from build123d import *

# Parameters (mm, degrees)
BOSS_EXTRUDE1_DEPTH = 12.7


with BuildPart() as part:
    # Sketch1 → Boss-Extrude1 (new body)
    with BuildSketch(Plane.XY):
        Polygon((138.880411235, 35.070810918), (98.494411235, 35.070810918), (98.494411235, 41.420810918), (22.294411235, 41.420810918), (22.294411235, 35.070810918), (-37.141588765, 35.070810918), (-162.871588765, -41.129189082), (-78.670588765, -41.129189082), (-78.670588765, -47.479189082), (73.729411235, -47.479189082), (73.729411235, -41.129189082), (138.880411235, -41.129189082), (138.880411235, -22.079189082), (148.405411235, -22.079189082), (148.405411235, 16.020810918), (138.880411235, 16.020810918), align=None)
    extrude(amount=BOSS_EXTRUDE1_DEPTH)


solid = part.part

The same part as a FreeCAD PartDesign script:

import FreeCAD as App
import Part
import Sketcher
Q = App.Units.Quantity

doc = App.newDocument("Part")
body = doc.addObject("PartDesign::Body", "Body")

sketch1 = doc.addObject("Sketcher::SketchObject", "Sketch")
body.addObject(sketch1)
sketch1.AttachmentSupport = (doc.XY_Plane, [""])
sketch1.MapMode = "FlatFace"
sketch1.addGeometry(Part.LineSegment(App.Vector(139, 35, 0), App.Vector(98, 35, 0)), False)
sketch1.addGeometry(Part.LineSegment(App.Vector(98, 35, 0), App.Vector(98, 41, 0)), False)
sketch1.addGeometry(Part.LineSegment(App.Vector(98, 41, 0), App.Vector(22, 41, 0)), False)
sketch1.addGeometry(Part.LineSegment(App.Vector(22, 41, 0), App.Vector(22, 35, 0)), False)
sketch1.addGeometry(Part.LineSegment(App.Vector(22, 35, 0), App.Vector(-37, 35, 0)), False)
sketch1.addGeometry(Part.LineSegment(App.Vector(-37, 35, 0), App.Vector(-163, -41, 0)), False)
sketch1.addGeometry(Part.LineSegment(App.Vector(-163, -41, 0), App.Vector(-79, -41, 0)), False)
sketch1.addGeometry(Part.LineSegment(App.Vector(-79, -41, 0), App.Vector(-79, -47, 0)), False)
sketch1.addGeometry(Part.LineSegment(App.Vector(-79, -47, 0), App.Vector(74, -47, 0)), False)
sketch1.addGeometry(Part.LineSegment(App.Vector(74, -47, 0), App.Vector(74, -41, 0)), False)
sketch1.addGeometry(Part.LineSegment(App.Vector(74, -41, 0), App.Vector(139, -41, 0)), False)
sketch1.addGeometry(Part.LineSegment(App.Vector(139, -41, 0), App.Vector(139, -22, 0)), False)
sketch1.addGeometry(Part.LineSegment(App.Vector(139, -22, 0), App.Vector(148, -22, 0)), False)
sketch1.addGeometry(Part.LineSegment(App.Vector(148, -22, 0), App.Vector(148, 16, 0)), False)
sketch1.addGeometry(Part.LineSegment(App.Vector(148, 16, 0), App.Vector(139, 16, 0)), False)
sketch1.addGeometry(Part.LineSegment(App.Vector(139, 16, 0), App.Vector(139, 35, 0)), False)
sketch1.addConstraint(Sketcher.Constraint("Coincident", 0, 2, 1, 1))
sketch1.addConstraint(Sketcher.Constraint("Coincident", 1, 2, 2, 1))
sketch1.addConstraint(Sketcher.Constraint("Coincident", 2, 2, 3, 1))
sketch1.addConstraint(Sketcher.Constraint("Coincident", 3, 2, 4, 1))
sketch1.addConstraint(Sketcher.Constraint("Coincident", 4, 2, 5, 1))
sketch1.addConstraint(Sketcher.Constraint("Coincident", 5, 2, 6, 1))
sketch1.addConstraint(Sketcher.Constraint("Coincident", 6, 2, 7, 1))
sketch1.addConstraint(Sketcher.Constraint("Coincident", 7, 2, 8, 1))
sketch1.addConstraint(Sketcher.Constraint("Coincident", 8, 2, 9, 1))
sketch1.addConstraint(Sketcher.Constraint("Coincident", 9, 2, 10, 1))
sketch1.addConstraint(Sketcher.Constraint("Coincident", 10, 2, 11, 1))
sketch1.addConstraint(Sketcher.Constraint("Coincident", 11, 2, 12, 1))
sketch1.addConstraint(Sketcher.Constraint("Coincident", 12, 2, 13, 1))
sketch1.addConstraint(Sketcher.Constraint("Coincident", 13, 2, 14, 1))
sketch1.addConstraint(Sketcher.Constraint("Coincident", 14, 2, 15, 1))
sketch1.addConstraint(Sketcher.Constraint("Coincident", 15, 2, 0, 1))
sketch1.addConstraint(Sketcher.Constraint("Horizontal", 0))
sketch1.addConstraint(Sketcher.Constraint("Vertical", 1))
sketch1.addConstraint(Sketcher.Constraint("Horizontal", 2))
sketch1.addConstraint(Sketcher.Constraint("Vertical", 3))
sketch1.addConstraint(Sketcher.Constraint("Horizontal", 4))
sketch1.addConstraint(Sketcher.Constraint("Horizontal", 6))
sketch1.addConstraint(Sketcher.Constraint("Vertical", 7))
sketch1.addConstraint(Sketcher.Constraint("Horizontal", 8))
sketch1.addConstraint(Sketcher.Constraint("Vertical", 9))
sketch1.addConstraint(Sketcher.Constraint("Horizontal", 10))
sketch1.addConstraint(Sketcher.Constraint("Vertical", 11))
sketch1.addConstraint(Sketcher.Constraint("Horizontal", 12))
sketch1.addConstraint(Sketcher.Constraint("Vertical", 13))
sketch1.addConstraint(Sketcher.Constraint("Horizontal", 14))
sketch1.addConstraint(Sketcher.Constraint("Vertical", 15))
sketch1.addConstraint(Sketcher.Constraint("Horizontal", 0, 2, 3, 2))
sketch1.addConstraint(Sketcher.Constraint("Horizontal", 6, 2, 9, 2))
sketch1.addConstraint(Sketcher.Constraint("Vertical", 11, 2, 14, 2))
sketch1.addConstraint(Sketcher.Constraint("Equal", 3, 7))
sketch1.addConstraint(Sketcher.Constraint("Equal", 11, 15))
sketch1.addConstraint(Sketcher.Constraint("DistanceX", 2, 2, 2, 1, Q("3 in")))
sketch1.addConstraint(Sketcher.Constraint("DistanceX", 8, 1, 8, 2, Q("6 in")))
sketch1.addConstraint(Sketcher.Constraint("DistanceY", 13, 1, 13, 2, Q("1.5 in")))
sketch1.addConstraint(Sketcher.Constraint("DistanceY", 5, 2, 4, 2, Q("3 in")))
sketch1.addConstraint(Sketcher.Constraint("DistanceY", 8, 2, 11, 2, Q("1 in")))
sketch1.addConstraint(Sketcher.Constraint("DistanceX", 0, 2, 0, 1, Q("1.59 in")))
sketch1.addConstraint(Sketcher.Constraint("DistanceX", 4, 2, 4, 1, Q("2.34 in")))
sketch1.addConstraint(Sketcher.Constraint("DistanceX", 6, 1, 6, 2, Q("3.315 in")))
sketch1.addConstraint(Sketcher.Constraint("DistanceX", 10, 1, 10, 2, Q("2.565 in")))
sketch1.addConstraint(Sketcher.Constraint("DistanceX", 12, 1, 12, 2, Q("0.375 in")))
sketch1.addConstraint(Sketcher.Constraint("DistanceX", -1, 1, 0, 2, Q("98.494411 mm")))
sketch1.addConstraint(Sketcher.Constraint("DistanceY", -1, 1, 0, 2, Q("35.070811 mm")))
pad1 = doc.addObject("PartDesign::Pad", "Pad")
body.addObject(pad1)
pad1.Profile = sketch1
pad1.Length = Q("0.5 in")

doc.recompute()
